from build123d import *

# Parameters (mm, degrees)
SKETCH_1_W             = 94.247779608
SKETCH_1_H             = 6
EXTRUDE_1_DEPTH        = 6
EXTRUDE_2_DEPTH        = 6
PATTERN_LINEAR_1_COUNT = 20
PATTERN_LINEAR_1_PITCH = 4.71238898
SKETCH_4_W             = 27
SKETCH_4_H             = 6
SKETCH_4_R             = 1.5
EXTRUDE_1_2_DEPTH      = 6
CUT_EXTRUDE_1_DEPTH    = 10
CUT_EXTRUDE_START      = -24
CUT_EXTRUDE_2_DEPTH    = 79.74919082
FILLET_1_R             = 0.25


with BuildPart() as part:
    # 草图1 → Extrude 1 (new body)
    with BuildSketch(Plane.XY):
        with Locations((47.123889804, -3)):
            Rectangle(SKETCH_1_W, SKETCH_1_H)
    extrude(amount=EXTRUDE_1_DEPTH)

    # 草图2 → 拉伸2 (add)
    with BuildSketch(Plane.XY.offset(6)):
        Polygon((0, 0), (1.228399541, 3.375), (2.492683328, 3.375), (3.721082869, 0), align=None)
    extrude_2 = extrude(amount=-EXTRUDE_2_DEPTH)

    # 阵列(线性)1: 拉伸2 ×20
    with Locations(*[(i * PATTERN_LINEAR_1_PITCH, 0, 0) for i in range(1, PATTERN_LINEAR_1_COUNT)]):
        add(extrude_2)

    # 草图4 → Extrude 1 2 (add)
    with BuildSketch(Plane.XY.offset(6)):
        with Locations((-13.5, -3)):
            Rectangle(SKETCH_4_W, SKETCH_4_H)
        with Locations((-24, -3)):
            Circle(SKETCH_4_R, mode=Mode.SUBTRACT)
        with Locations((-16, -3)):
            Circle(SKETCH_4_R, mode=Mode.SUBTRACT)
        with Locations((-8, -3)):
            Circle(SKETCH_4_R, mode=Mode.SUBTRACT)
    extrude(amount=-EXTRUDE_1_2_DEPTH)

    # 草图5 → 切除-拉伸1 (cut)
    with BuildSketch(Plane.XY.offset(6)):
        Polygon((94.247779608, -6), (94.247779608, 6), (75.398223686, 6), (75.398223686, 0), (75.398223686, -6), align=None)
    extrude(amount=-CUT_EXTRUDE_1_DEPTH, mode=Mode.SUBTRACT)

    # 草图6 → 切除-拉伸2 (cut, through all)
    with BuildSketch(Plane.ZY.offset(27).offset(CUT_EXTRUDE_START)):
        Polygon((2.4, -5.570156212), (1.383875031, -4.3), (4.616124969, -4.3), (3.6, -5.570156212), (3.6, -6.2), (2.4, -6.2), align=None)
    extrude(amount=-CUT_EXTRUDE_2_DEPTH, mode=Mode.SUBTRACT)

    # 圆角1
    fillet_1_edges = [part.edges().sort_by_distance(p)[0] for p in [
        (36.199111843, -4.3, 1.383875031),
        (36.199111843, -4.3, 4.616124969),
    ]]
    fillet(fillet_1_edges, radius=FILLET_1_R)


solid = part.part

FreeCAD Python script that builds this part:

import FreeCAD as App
import Part
import Sketcher
from FreeCAD import Vector
Q = App.Units.Quantity


def edges_at(feature, points):
    """Names of the edges that pass closest to the given points."""
    edges = feature.Shape.Edges
    near = lambda p: min(range(len(edges)), key=lambda i: edges[i].distToShape(Part.Vertex(*p))[0])
    return sorted({f"Edge{near(p) + 1}" for p in points})


def add_polygon(sketch, points):
    """Adds a closed chain of lines whose ends are joined by coincident constraints."""
    first, n = sketch.GeometryCount, len(points)
    for a, b in zip(points, points[1:] + points[:1]):
        sketch.addGeometry(Part.LineSegment(App.Vector(*a, 0), App.Vector(*b, 0)), False)
    for i in range(n):
        sketch.addConstraint(Sketcher.Constraint("Coincident", first + i, 2, first + (i + 1) % n, 1))

doc = App.newDocument("Part")
body = doc.addObject("PartDesign::Body", "Body")

# Sketch on XY plane
sketch1 = body.newObject("Sketcher::SketchObject", "Sketch")
sketch1.AttachmentSupport = (doc.getObject("XY_Plane"), [""])
sketch1.MapMode = "FlatFace"
add_polygon(sketch1, [(0, 0), (0, -6), (94, -6), (94, 0)])  # lines 0-3
sketch1.addConstraint([
    Sketcher.Constraint("Vertical", 0),
    Sketcher.Constraint("Horizontal", 1),
    Sketcher.Constraint("Vertical", 2),
    Sketcher.Constraint("Horizontal", 3),
    Sketcher.Constraint("Coincident", 3, 2, -1, 1),
    Sketcher.Constraint("DistanceY", 0, 2, 0, 1, 6.0),
    Sketcher.Constraint("DistanceX", 1, 1, 1, 2, 94.24778),
])
pad1 = body.newObject("PartDesign::Pad", "Pad")
pad1.Profile = sketch1
pad1.Length = 6

# Sketch on XY plane
sketch2 = body.newObject("Sketcher::SketchObject", "Sketch001")
sketch2.AttachmentSupport = (doc.getObject("XY_Plane"), [""])
sketch2.MapMode = "FlatFace"
sketch2.AttachmentOffset = App.Placement(Vector(0, 0, 6), App.Rotation())
add_polygon(sketch2, [(1.2, 3.4), (0, 0), (3.7, 0), (2.5, 3.4)])  # lines 0-3
sketch2.addConstraint([
    Sketcher.Constraint("Horizontal", 1),
    Sketcher.Constraint("Horizontal", 3),
    Sketcher.Constraint("Coincident", 0, 2, -1, 1),
    Sketcher.Constraint("Equal", 0, 2),
    Sketcher.Constraint("Angle", 0, Q("-110 deg")),
    Sketcher.Constraint("DistanceY", -1, 1, 2, 2, 3.375),
    Sketcher.Constraint("DistanceX", 1, 1, 1, 2, 3.721083),
])
pad2 = body.newObject("PartDesign::Pad", "Pad001")
pad2.Profile = sketch2
pad2.Length = 6
pad2.Reversed = True
doc.recompute()

linearpattern = body.newObject("PartDesign::LinearPattern", "LinearPattern")
linearpattern.Originals = [pad2]
linearpattern.Direction = (doc.getObject("X_Axis"), [""])
linearpattern.Mode = "offset"
linearpattern.Offset = 4.712389
linearpattern.Occurrences = 20
body.Tip = linearpattern

# Sketch on XY plane
sketch3 = body.newObject("Sketcher::SketchObject", "Sketch002")
sketch3.AttachmentSupport = (doc.getObject("XY_Plane"), [""])
sketch3.MapMode = "FlatFace"
sketch3.AttachmentOffset = App.Placement(Vector(0, 0, 6), App.Rotation())
add_polygon(sketch3, [(-27, 0), (-27, -6), (0, -6), (0, 0)])  # lines 0-3
sketch3.addGeometry(Part.Circle(Vector(-24, -3, 0), Vector(0, 0, 1), 1.5), False)  # 4
sketch3.addGeometry(Part.Circle(Vector(-16, -3, 0), Vector(0, 0, 1), 1.5), False)  # 5
sketch3.addGeometry(Part.Circle(Vector(-8, -3, 0), Vector(0, 0, 1), 1.5), False)  # 6
sketch3.addConstraint([
    Sketcher.Constraint("Vertical", 0),
    Sketcher.Constraint("Horizontal", 1),
    Sketcher.Constraint("Vertical", 2),
    Sketcher.Constraint("Horizontal", 3),
    Sketcher.Constraint("Coincident", 2, 2, -1, 1),
    Sketcher.Constraint("Equal", 4, 5),
    Sketcher.Constraint("Equal", 5, 6),
    Sketcher.Constraint("Horizontal", 4, 3, 5, 3),
    Sketcher.Constraint("Horizontal", 5, 3, 6, 3),
    Sketcher.Constraint("Diameter", 4, 3.0),
    Sketcher.Constraint("DistanceX", 1, 1, 1, 2, 27.0),
    Sketcher.Constraint("DistanceY", 0, 2, 0, 1, 6.0),
    Sketcher.Constraint("DistanceX", 4, 3, -1, 1, 24.0),
    Sketcher.Constraint("DistanceY", 4, 3, -1, 1, 3.0),
    Sketcher.Constraint("DistanceX", 5, 3, -1, 1, 16.0),
    Sketcher.Constraint("DistanceX", 6, 3, -1, 1, 8.0),
])
pad3 = body.newObject("PartDesign::Pad", "Pad002")
pad3.Profile = sketch3
pad3.Length = 6
pad3.Reversed = True

# Sketch on XY plane
sketch4 = body.newObject("Sketcher::SketchObject", "Sketch003")
sketch4.AttachmentSupport = (doc.getObject("XY_Plane"), [""])
sketch4.MapMode = "FlatFace"
sketch4.AttachmentOffset = App.Placement(Vector(0, 0, 6), App.Rotation())
add_polygon(sketch4, [(94, -6), (94, 6), (75, 6), (75, -6)])  # lines 0-3
sketch4.addConstraint([
    Sketcher.Constraint("Vertical", 0),
    Sketcher.Constraint("Horizontal", 1),
    Sketcher.Constraint("Vertical", 2),
    Sketcher.Constraint("Horizontal", 3),
    Sketcher.Constraint("DistanceY", 0, 1, 0, 2, 12.0),
    Sketcher.Constraint("DistanceY", -1, 1, 0, 2, 6.0),
    Sketcher.Constraint("DistanceX", 1, 2, 1, 1, 18.849556),
    Sketcher.Constraint("DistanceX", -1, 1, 0, 2, 94.24778),
])
pocket1 = body.newObject("PartDesign::Pocket", "Pocket")
pocket1.Profile = sketch4
pocket1.Length = 10

# Sketch on YZ plane
sketch5 = body.newObject("Sketcher::SketchObject", "Sketch004")
sketch5.AttachmentSupport = (doc.getObject("YZ_Plane"), [""])
sketch5.MapMode = "FlatFace"
sketch5.AttachmentOffset = App.Placement(Vector(0, 0, -3), App.Rotation())
add_polygon(sketch5, [(-4.3, 1.4), (-5.6, 2.4), (-6.2, 2.4), (-6.2, 3.6), (-5.6, 3.6), (-4.3, 4.6)])  # lines 0-5
sketch5.addConstraint([
    Sketcher.Constraint("Horizontal", 1),
    Sketcher.Constraint("Vertical", 2),
    Sketcher.Constraint("Horizontal", 3),
    Sketcher.Constraint("Vertical", 5),
    Sketcher.Constraint("Vertical", 0, 2, 3, 2),
    Sketcher.Constraint("Equal", 0, 4),
    Sketcher.Constraint("DistanceY", 2, 1, 2, 2, 1.2),
    Sketcher.Constraint("DistanceY", -1, 1, 0, 2, 2.4),
    Sketcher.Constraint("DistanceX", 1, 2, -1, 1, 6.2),
    Sketcher.Constraint("DistanceX", 4, 2, -1, 1, 4.3),
    Sketcher.Constraint("DistanceY", 5, 2, 5, 1, 3.23225),
    Sketcher.Constraint("DistanceX", 1, 2, 1, 1, 0.629844),
])
pocket2 = body.newObject("PartDesign::Pocket", "Pocket001")
pocket2.Profile = sketch5
pocket2.Type = "ThroughAll"
pocket2.Reversed = True
doc.recompute()

fillet = body.newObject("PartDesign::Fillet", "Fillet")
fillet.Base = (pocket2, edges_at(pocket2, [(36.199, -4.3, 1.384), (36.199, -4.3, 4.616)]))
fillet.Radius = 0.25

doc.recompute()
